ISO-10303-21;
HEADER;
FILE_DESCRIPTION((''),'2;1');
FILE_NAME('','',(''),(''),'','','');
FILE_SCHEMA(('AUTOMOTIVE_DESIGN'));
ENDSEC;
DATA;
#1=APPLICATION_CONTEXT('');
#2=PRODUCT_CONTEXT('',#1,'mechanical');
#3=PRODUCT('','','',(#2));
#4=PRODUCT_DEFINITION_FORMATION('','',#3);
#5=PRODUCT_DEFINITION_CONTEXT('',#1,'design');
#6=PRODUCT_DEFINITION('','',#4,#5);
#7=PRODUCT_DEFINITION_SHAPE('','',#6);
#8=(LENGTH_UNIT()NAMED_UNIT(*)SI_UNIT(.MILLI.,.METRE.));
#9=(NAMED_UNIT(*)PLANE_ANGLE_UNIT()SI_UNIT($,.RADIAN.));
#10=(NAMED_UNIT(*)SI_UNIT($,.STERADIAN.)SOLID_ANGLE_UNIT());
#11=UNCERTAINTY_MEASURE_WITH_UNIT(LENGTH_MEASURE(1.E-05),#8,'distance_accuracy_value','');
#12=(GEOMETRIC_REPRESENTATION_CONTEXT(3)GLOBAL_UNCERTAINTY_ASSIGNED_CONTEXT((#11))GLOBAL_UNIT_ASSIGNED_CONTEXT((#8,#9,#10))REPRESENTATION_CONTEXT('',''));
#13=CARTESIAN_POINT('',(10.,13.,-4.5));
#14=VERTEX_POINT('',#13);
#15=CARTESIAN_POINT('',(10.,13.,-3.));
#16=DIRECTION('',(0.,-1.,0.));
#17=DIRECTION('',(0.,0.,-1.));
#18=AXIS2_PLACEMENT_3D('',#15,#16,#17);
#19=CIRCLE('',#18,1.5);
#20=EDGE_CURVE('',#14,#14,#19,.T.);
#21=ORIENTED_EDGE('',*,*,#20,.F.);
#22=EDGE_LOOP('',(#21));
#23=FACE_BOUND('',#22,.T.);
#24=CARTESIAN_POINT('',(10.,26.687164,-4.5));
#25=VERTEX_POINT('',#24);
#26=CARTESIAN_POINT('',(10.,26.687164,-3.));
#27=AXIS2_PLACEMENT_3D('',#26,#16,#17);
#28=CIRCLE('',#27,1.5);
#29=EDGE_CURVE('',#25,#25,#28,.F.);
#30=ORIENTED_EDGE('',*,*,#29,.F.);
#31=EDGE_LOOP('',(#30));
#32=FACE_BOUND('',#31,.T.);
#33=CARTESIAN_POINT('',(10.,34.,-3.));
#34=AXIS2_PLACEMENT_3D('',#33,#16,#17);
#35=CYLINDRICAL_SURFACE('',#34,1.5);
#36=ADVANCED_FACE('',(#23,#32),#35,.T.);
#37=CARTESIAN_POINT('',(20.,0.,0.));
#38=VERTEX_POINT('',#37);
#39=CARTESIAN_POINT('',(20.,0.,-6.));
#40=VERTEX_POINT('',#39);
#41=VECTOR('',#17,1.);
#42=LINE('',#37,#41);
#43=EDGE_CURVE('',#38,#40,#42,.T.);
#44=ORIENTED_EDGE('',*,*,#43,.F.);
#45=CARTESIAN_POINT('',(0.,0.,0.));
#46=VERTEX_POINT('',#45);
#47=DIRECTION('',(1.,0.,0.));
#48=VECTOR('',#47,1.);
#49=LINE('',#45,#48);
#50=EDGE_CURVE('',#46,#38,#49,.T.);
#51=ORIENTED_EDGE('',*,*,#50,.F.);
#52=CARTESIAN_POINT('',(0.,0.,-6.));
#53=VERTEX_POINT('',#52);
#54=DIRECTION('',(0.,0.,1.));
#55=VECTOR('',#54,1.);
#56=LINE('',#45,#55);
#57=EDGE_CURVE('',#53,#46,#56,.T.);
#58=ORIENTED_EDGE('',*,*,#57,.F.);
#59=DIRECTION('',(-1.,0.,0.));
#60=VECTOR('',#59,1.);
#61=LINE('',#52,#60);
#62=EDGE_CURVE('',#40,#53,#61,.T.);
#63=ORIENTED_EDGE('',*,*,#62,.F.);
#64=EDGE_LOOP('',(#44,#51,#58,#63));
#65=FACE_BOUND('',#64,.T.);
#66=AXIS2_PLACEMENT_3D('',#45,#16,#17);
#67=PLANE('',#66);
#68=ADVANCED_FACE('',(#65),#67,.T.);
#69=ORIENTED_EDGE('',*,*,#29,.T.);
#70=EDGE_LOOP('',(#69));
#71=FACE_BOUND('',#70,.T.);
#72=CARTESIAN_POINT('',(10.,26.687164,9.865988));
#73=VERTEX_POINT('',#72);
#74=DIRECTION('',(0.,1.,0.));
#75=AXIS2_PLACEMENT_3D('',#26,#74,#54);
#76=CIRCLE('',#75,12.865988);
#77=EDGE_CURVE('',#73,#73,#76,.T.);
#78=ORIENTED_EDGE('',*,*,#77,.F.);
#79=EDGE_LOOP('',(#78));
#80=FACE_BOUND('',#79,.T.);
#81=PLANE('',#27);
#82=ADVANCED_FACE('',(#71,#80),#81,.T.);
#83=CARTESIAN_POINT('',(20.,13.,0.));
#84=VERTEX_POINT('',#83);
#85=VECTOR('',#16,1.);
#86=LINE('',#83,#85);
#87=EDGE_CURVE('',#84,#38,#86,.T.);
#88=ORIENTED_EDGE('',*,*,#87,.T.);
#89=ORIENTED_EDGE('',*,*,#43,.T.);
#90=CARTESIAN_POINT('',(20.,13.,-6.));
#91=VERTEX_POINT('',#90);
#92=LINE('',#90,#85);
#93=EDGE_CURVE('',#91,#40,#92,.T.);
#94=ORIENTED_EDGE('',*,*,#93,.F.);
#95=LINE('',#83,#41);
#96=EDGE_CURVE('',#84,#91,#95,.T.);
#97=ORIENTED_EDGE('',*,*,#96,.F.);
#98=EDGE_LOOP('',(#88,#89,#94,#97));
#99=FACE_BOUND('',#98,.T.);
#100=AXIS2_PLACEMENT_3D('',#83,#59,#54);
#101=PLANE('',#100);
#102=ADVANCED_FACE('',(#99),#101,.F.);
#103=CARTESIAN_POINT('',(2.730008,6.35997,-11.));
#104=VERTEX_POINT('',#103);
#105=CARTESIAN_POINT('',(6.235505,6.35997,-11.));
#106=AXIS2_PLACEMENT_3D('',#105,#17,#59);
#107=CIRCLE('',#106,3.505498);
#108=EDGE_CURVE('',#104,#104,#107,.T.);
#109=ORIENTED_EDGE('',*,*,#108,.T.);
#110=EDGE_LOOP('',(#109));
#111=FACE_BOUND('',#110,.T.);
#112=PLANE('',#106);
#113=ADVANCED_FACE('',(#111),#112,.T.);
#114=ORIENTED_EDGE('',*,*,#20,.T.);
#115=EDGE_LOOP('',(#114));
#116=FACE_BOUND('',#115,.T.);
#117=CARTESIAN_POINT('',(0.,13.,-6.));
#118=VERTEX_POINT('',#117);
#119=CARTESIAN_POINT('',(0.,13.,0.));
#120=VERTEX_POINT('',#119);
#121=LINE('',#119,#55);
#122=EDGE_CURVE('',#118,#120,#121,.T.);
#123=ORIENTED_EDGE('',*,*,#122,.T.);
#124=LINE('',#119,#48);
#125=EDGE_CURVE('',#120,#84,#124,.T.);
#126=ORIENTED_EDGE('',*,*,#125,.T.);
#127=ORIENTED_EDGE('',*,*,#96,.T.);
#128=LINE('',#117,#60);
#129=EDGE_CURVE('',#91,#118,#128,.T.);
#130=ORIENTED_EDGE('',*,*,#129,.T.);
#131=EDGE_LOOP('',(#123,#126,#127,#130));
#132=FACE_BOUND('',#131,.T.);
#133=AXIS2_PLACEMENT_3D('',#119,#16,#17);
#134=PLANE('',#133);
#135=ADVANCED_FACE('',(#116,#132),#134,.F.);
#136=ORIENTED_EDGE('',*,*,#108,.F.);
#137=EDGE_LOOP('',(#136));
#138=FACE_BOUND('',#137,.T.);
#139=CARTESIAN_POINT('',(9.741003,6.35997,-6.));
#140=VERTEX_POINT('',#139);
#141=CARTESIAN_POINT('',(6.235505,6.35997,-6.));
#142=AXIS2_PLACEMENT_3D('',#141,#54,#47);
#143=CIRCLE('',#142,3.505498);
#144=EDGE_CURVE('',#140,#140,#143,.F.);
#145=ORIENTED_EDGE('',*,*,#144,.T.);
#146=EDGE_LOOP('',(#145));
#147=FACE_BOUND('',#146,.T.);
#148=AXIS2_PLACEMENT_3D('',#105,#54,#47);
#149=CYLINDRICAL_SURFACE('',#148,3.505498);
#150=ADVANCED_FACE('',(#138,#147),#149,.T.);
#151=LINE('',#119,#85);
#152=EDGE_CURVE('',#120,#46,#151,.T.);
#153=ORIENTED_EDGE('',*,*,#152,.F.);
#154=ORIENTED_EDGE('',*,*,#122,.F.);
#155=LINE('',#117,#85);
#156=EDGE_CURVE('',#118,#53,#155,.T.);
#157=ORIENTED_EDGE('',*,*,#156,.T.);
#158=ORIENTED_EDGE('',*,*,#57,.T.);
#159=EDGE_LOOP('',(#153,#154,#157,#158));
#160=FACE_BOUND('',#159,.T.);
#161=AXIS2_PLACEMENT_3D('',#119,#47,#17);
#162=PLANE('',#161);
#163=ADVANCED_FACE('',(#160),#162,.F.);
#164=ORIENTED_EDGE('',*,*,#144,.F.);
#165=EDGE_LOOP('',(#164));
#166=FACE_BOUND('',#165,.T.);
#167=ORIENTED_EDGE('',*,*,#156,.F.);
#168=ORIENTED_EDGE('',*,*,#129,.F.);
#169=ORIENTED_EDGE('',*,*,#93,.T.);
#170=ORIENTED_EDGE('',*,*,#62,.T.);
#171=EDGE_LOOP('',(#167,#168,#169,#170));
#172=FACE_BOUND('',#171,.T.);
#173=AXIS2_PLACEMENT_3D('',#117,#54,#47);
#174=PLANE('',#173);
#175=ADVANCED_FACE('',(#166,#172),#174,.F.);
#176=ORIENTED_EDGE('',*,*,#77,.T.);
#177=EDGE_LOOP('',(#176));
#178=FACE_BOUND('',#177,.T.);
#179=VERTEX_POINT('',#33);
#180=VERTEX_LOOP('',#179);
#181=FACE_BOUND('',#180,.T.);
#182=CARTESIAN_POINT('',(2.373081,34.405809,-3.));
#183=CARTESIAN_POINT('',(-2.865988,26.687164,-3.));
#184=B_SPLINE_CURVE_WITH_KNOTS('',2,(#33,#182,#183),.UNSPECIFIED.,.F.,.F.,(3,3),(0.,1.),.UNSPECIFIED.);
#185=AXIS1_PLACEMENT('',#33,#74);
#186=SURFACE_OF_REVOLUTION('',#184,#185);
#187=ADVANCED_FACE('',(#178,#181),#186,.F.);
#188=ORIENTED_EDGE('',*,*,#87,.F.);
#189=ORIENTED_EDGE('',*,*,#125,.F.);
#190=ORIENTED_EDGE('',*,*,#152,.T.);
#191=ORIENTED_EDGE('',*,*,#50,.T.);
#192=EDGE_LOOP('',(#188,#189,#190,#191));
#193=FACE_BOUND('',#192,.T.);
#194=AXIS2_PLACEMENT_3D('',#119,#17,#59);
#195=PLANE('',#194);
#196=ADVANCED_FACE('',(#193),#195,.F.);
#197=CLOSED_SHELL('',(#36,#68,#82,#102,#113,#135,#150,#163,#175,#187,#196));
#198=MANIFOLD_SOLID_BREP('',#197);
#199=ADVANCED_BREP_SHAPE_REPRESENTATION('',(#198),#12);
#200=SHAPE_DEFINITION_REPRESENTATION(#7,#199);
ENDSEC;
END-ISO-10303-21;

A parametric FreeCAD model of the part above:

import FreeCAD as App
import Part
import Sketcher
from FreeCAD import Vector

doc = App.newDocument("Part")
body = doc.addObject("PartDesign::Body", "Body")

# Sketch on XZ plane
sketch1 = body.newObject("Sketcher::SketchObject", "Sketch")
sketch1.AttachmentSupport = (doc.getObject("XZ_Plane"), [""])
sketch1.MapMode = "FlatFace"
sketch1.addGeometry(Part.LineSegment(Vector(0, -6, 0), Vector(0, 0, 0)), False)
sketch1.addGeometry(Part.LineSegment(Vector(0, 0, 0), Vector(20, 0, 0)), False)
sketch1.addGeometry(Part.LineSegment(Vector(20, 0, 0), Vector(20, -6, 0)), False)
sketch1.addGeometry(Part.LineSegment(Vector(20, -6, 0), Vector(0, -6, 0)), False)
sketch1.addConstraint(Sketcher.Constraint("Coincident", 0, 2, 1, 1))
sketch1.addConstraint(Sketcher.Constraint("Coincident", 1, 2, 2, 1))
sketch1.addConstraint(Sketcher.Constraint("Coincident", 2, 2, 3, 1))
sketch1.addConstraint(Sketcher.Constraint("Coincident", 3, 2, 0, 1))
sketch1.addConstraint(Sketcher.Constraint("Vertical", 0))
sketch1.addConstraint(Sketcher.Constraint("Horizontal", 1))
sketch1.addConstraint(Sketcher.Constraint("Vertical", 2))
sketch1.addConstraint(Sketcher.Constraint("Horizontal", 3))
sketch1.addConstraint(Sketcher.Constraint("Coincident", 0, 2, -1, 1))
sketch1.addConstraint(Sketcher.Constraint("DistanceX", 1, 1, 1, 2, 20.0))
sketch1.addConstraint(Sketcher.Constraint("DistanceY", 0, 1, 0, 2, 6.0))
pad1 = body.newObject("PartDesign::Pad", "Pad")
pad1.Profile = sketch1
pad1.Length = 13
pad1.Reversed = True

# Sketch on XZ plane
sketch2 = body.newObject("Sketcher::SketchObject", "Sketch001")
sketch2.AttachmentSupport = (doc.getObject("XZ_Plane"), [""])
sketch2.MapMode = "FlatFace"
sketch2.addGeometry(Part.Circle(Vector(10, -3, 0), Vector(0, 0, 1), 1.5), False)
sketch2.addConstraint(Sketcher.Constraint("Diameter", 0, 3.0))
sketch2.addConstraint(Sketcher.Constraint("DistanceX", -1, 1, 0, 3, 10.0))
sketch2.addConstraint(Sketcher.Constraint("DistanceY", 0, 3, -1, 1, 3.0))
pad2 = body.newObject("PartDesign::Pad", "Pad001")
pad2.Profile = sketch2
pad2.Length = 34
pad2.Reversed = True

# Sketch on XY plane
sketch3 = body.newObject("Sketcher::SketchObject", "Sketch002")
sketch3.AttachmentSupport = (doc.getObject("XY_Plane"), [""])
sketch3.MapMode = "FlatFace"
sketch3.AttachmentOffset = App.Placement(Vector(0, 0, -3), App.Rotation())
sketch3.addGeometry(Part.LineSegment(Vector(10, 26.687164, 0), Vector(10, 34, 0)), False)
sketch3.addGeometry(Part.BSplineCurve([Vector(10, 34, 0), Vector(2.373081, 34.405809, 0), Vector(-2.865988, 26.687164, 0)], [3, 3], [0, 1], False, 2, [1, 1, 1], False), False)
sketch3.addGeometry(Part.LineSegment(Vector(-2.865988, 26.687164, 0), Vector(10, 26.687164, 0)), False)
sketch3.addGeometry(Part.LineSegment(Vector(10, 34, 0), Vector(10, 26.687164, 0)), True)  # axis
sketch3.addConstraint(Sketcher.Constraint("Block", 1))
sketch3.addConstraint(Sketcher.Constraint("Coincident", 0, 2, 1, 1))
sketch3.addConstraint(Sketcher.Constraint("Coincident", 1, 2, 2, 1))
sketch3.addConstraint(Sketcher.Constraint("Coincident", 2, 2, 0, 1))
sketch3.addConstraint(Sketcher.Constraint("Vertical", 0))
sketch3.addConstraint(Sketcher.Constraint("Horizontal", 2))
sketch3.addConstraint(Sketcher.Constraint("Vertical", 3))
sketch3.addConstraint(Sketcher.Constraint("Coincident", 3, 1, 0, 2))
sketch3.addConstraint(Sketcher.Constraint("Equal", 0, 3))
revolution = body.newObject("PartDesign::Revolution", "Revolution")
revolution.Profile = sketch3
revolution.ReferenceAxis = (sketch3, ["Axis0"])
revolution.Angle = 360

# Sketch on XY plane
sketch4 = body.newObject("Sketcher::SketchObject", "Sketch003")
sketch4.AttachmentSupport = (doc.getObject("XY_Plane"), [""])
sketch4.MapMode = "FlatFace"
sketch4.AttachmentOffset = App.Placement(Vector(0, 0, -6), App.Rotation())
sketch4.addGeometry(Part.Circle(Vector(6.2, 6.4, 0), Vector(0, 0, 1), 3.5), False)
sketch4.addConstraint(Sketcher.Constraint("Diameter", 0, 7.010995))
sketch4.addConstraint(Sketcher.Constraint("DistanceY", -1, 1, 0, 3, 6.35997))
sketch4.addConstraint(Sketcher.Constraint("DistanceX", -1, 1, 0, 3, 6.235505))
pad3 = body.newObject("PartDesign::Pad", "Pad002")
pad3.Profile = sketch4
pad3.Length = 5
pad3.Reversed = True

doc.recompute()
